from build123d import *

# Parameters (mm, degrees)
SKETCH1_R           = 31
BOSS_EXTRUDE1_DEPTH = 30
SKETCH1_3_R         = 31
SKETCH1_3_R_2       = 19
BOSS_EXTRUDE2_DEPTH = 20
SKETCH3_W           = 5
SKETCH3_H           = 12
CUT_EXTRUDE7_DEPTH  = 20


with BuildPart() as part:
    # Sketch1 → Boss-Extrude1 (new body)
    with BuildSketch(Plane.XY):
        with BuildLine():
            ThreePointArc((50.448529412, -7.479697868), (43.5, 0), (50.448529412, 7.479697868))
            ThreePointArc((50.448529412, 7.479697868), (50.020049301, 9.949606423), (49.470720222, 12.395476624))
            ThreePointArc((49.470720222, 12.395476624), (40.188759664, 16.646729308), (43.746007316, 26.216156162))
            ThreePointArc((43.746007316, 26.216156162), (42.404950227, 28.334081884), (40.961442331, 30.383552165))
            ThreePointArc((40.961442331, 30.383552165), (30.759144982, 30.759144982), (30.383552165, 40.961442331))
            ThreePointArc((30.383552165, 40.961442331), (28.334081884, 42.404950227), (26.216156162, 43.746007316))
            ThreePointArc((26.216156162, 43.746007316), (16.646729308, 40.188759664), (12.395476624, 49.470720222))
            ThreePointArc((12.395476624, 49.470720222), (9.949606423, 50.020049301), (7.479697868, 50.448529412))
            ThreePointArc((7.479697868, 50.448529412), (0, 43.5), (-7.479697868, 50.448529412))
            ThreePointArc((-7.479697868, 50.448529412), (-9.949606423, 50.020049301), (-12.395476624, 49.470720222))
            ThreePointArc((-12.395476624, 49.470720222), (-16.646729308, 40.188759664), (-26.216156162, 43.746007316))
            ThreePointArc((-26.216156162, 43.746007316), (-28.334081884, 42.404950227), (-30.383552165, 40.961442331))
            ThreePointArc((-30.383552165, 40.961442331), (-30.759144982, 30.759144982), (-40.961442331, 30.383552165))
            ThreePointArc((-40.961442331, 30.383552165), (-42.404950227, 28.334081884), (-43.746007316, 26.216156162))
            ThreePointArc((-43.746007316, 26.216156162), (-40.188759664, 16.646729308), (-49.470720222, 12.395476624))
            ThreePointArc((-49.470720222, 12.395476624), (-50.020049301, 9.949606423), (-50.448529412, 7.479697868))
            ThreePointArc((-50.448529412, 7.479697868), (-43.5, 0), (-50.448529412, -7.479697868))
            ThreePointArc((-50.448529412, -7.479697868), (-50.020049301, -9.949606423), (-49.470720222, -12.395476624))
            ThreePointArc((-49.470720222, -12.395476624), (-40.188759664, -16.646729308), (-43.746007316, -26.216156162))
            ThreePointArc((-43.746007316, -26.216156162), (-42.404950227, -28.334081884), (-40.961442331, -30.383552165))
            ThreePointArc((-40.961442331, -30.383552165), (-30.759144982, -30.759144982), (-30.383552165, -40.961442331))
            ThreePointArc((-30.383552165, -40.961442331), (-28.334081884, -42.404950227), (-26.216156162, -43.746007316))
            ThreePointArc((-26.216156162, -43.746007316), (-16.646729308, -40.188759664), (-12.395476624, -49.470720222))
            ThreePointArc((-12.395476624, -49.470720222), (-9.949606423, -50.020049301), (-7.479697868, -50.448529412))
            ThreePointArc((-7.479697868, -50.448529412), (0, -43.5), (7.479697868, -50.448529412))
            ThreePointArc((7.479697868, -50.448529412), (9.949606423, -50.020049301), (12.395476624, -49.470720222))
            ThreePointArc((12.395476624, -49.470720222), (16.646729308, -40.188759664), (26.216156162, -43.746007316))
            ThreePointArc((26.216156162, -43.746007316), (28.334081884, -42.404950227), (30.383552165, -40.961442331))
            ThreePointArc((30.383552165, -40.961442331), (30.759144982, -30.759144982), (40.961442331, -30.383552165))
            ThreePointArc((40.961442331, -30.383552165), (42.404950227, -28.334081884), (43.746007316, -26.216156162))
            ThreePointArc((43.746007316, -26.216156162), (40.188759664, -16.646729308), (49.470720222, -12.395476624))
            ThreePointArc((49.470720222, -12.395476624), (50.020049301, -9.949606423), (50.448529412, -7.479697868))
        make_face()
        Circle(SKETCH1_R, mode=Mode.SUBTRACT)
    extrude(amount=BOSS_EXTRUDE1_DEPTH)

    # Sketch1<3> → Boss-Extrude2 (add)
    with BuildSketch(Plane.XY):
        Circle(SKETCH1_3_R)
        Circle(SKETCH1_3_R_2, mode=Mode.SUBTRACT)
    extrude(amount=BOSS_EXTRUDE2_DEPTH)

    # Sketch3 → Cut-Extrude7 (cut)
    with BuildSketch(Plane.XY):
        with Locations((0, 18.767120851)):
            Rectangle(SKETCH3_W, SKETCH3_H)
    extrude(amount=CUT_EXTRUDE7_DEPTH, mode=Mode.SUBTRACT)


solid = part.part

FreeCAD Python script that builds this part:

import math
import FreeCAD as App
import Part
import Sketcher

V = App.Vector

doc = App.newDocument("Part")
params = doc.addObject("Spreadsheet::Sheet", "Params")
for row, (alias, value) in enumerate([
    ("sketch1_diameter", "62 mm"),
    ("sketch1_radius", "51 mm"),
    ("sketch1_radius2", "7.5 mm"),
    ("pad1_length", "30 mm"),
    ("sketch2_diameter", "62 mm"),
    ("sketch2_diameter2", "38 mm"),
    ("pad2_length", "20 mm"),
    ("sketch3_width", "5 mm"),
    ("sketch3_height", "12 mm"),
    ("pocket1_length", "20 mm"),
], start=1):
    params.set(f"A{row}", alias)
    params.set(f"B{row}", "=" + value)
    params.setAlias(f"B{row}", alias)

body = doc.addObject("PartDesign::Body", "Body")

sketch1 = body.newObject("Sketcher::SketchObject", "Sketch")
sketch1.AttachmentSupport = (doc.getObject("XY_Plane"), [""])
sketch1.MapMode = "FlatFace"
sketch1.addGeometry([
    Part.ArcOfCircle(Part.Circle(V(51, 0, 0), V(0, 0, 1), 8), math.radians(94), math.radians(266)),
    Part.ArcOfCircle(Part.Circle(V(0, 0, 0), V(0, 0, 1), 51), math.radians(8.43), math.radians(14.07)),
    Part.ArcOfCircle(Part.Circle(V(47, 20, 0), V(0, 0, 1), 8), math.radians(117), math.radians(288)),
    Part.ArcOfCircle(Part.Circle(V(0, 0, 0), V(0, 0, 1), 51), math.radians(30.93), math.radians(36.57)),
    Part.ArcOfCircle(Part.Circle(V(36, 36, 0), V(0, 0, 1), 7), math.radians(139), math.radians(311)),
    Part.ArcOfCircle(Part.Circle(V(0, 0, 0), V(0, 0, 1), 51), math.radians(53.43), math.radians(59.07)),
    Part.ArcOfCircle(Part.Circle(V(20, 47, 0), V(0, 0, 1), 8), math.radians(162), math.radians(333)),
    Part.ArcOfCircle(Part.Circle(V(0, 0, 0), V(0, 0, 1), 51), math.radians(75.93), math.radians(81.57)),
    Part.ArcOfCircle(Part.Circle(V(0, 51, 0), V(0, 0, 1), 8), math.radians(-176), math.radians(-4)),
    Part.ArcOfCircle(Part.Circle(V(0, 0, 0), V(0, 0, 1), 51), math.radians(98.43), math.radians(104.07)),
    Part.ArcOfCircle(Part.Circle(V(-20, 47, 0), V(0, 0, 1), 8), math.radians(-153), math.radians(18)),
    Part.ArcOfCircle(Part.Circle(V(0, 0, 0), V(0, 0, 1), 51), math.radians(120.93), math.radians(126.57)),
    Part.ArcOfCircle(Part.Circle(V(-36, 36, 0), V(0, 0, 1), 7), math.radians(-131), math.radians(41)),
    Part.ArcOfCircle(Part.Circle(V(0, 0, 0), V(0, 0, 1), 51), math.radians(143.43), math.radians(149.07)),
    Part.ArcOfCircle(Part.Circle(V(-47, 20, 0), V(0, 0, 1), 8), math.radians(-108), math.radians(63)),
    Part.ArcOfCircle(Part.Circle(V(0, 0, 0), V(0, 0, 1), 51), math.radians(165.93), math.radians(171.57)),
    Part.ArcOfCircle(Part.Circle(V(-51, 0, 0), V(0, 0, 1), 8), math.radians(-86), math.radians(86)),
    Part.ArcOfCircle(Part.Circle(V(0, 0, 0), V(0, 0, 1), 51), math.radians(-171.57), math.radians(-165.93)),
    Part.ArcOfCircle(Part.Circle(V(-47, -20, 0), V(0, 0, 1), 8), math.radians(-63), math.radians(108)),
    Part.ArcOfCircle(Part.Circle(V(0, 0, 0), V(0, 0, 1), 51), math.radians(-149.07), math.radians(-143.43)),
    Part.ArcOfCircle(Part.Circle(V(-36, -36, 0), V(0, 0, 1), 7), math.radians(-41), math.radians(131)),
    Part.ArcOfCircle(Part.Circle(V(0, 0, 0), V(0, 0, 1), 51), math.radians(-126.57), math.radians(-120.93)),
    Part.ArcOfCircle(Part.Circle(V(-20, -47, 0), V(0, 0, 1), 8), math.radians(-18), math.radians(153)),
    Part.ArcOfCircle(Part.Circle(V(0, 0, 0), V(0, 0, 1), 51), math.radians(-104.07), math.radians(-98.43)),
    Part.ArcOfCircle(Part.Circle(V(0, -51, 0), V(0, 0, 1), 8), math.radians(4), math.radians(176)),
    Part.ArcOfCircle(Part.Circle(V(0, 0, 0), V(0, 0, 1), 51), math.radians(-81.57), math.radians(-75.93)),
    Part.ArcOfCircle(Part.Circle(V(20, -47, 0), V(0, 0, 1), 8), math.radians(27), math.radians(198)),
    Part.ArcOfCircle(Part.Circle(V(0, 0, 0), V(0, 0, 1), 51), math.radians(-59.07), math.radians(-53.43)),
    Part.ArcOfCircle(Part.Circle(V(36, -36, 0), V(0, 0, 1), 7), math.radians(49), math.radians(221)),
    Part.ArcOfCircle(Part.Circle(V(0, 0, 0), V(0, 0, 1), 51), math.radians(-36.57), math.radians(-30.93)),
    Part.ArcOfCircle(Part.Circle(V(47, -20, 0), V(0, 0, 1), 8), math.radians(72), math.radians(243)),
    Part.ArcOfCircle(Part.Circle(V(0, 0, 0), V(0, 0, 1), 51), math.radians(-14.07), math.radians(-8.43)),
    Part.Circle(V(0, 0, 0), V(0, 0, 1), 31),
], False)
sketch1.addConstraint([
    Sketcher.Constraint("Coincident", 0, 1, 1, 1),
    Sketcher.Constraint("Coincident", 1, 2, 2, 2),
    Sketcher.Constraint("Coincident", 2, 1, 3, 1),
    Sketcher.Constraint("Coincident", 3, 2, 4, 2),
    Sketcher.Constraint("Coincident", 4, 1, 5, 1),
    Sketcher.Constraint("Coincident", 5, 2, 6, 2),
    Sketcher.Constraint("Coincident", 6, 1, 7, 1),
    Sketcher.Constraint("Coincident", 7, 2, 8, 2),
    Sketcher.Constraint("Coincident", 8, 1, 9, 1),
    Sketcher.Constraint("Coincident", 9, 2, 10, 2),
    Sketcher.Constraint("Coincident", 10, 1, 11, 1),
    Sketcher.Constraint("Coincident", 11, 2, 12, 2),
    Sketcher.Constraint("Coincident", 12, 1, 13, 1),
    Sketcher.Constraint("Coincident", 13, 2, 14, 2),
    Sketcher.Constraint("Coincident", 14, 1, 15, 1),
    Sketcher.Constraint("Coincident", 15, 2, 16, 2),
    Sketcher.Constraint("Coincident", 16, 1, 17, 1),
    Sketcher.Constraint("Coincident", 17, 2, 18, 2),
    Sketcher.Constraint("Coincident", 18, 1, 19, 1),
    Sketcher.Constraint("Coincident", 19, 2, 20, 2),
    Sketcher.Constraint("Coincident", 20, 1, 21, 1),
    Sketcher.Constraint("Coincident", 21, 2, 22, 2),
    Sketcher.Constraint("Coincident", 22, 1, 23, 1),
    Sketcher.Constraint("Coincident", 23, 2, 24, 2),
    Sketcher.Constraint("Coincident", 24, 1, 25, 1),
    Sketcher.Constraint("Coincident", 25, 2, 26, 2),
    Sketcher.Constraint("Coincident", 26, 1, 27, 1),
    Sketcher.Constraint("Coincident", 27, 2, 28, 2),
    Sketcher.Constraint("Coincident", 28, 1, 29, 1),
    Sketcher.Constraint("Coincident", 29, 2, 30, 2),
    Sketcher.Constraint("Coincident", 30, 1, 31, 1),
    Sketcher.Constraint("Coincident", 31, 2, 0, 2),
    Sketcher.Constraint("Coincident", 1, 3, -1, 1),
    Sketcher.Constraint("Coincident", 3, 3, -1, 1),
    Sketcher.Constraint("Coincident", 5, 3, -1, 1),
    Sketcher.Constraint("Coincident", 7, 3, -1, 1),
    Sketcher.Constraint("Coincident", 9, 3, -1, 1),
    Sketcher.Constraint("Coincident", 11, 3, -1, 1),
    Sketcher.Constraint("Coincident", 13, 3, -1, 1),
    Sketcher.Constraint("Coincident", 15, 3, -1, 1),
    Sketcher.Constraint("Coincident", 17, 3, -1, 1),
    Sketcher.Constraint("Coincident", 19, 3, -1, 1),
    Sketcher.Constraint("Coincident", 21, 3, -1, 1),
    Sketcher.Constraint("Coincident", 23, 3, -1, 1),
    Sketcher.Constraint("Coincident", 25, 3, -1, 1),
    Sketcher.Constraint("Coincident", 27, 3, -1, 1),
    Sketcher.Constraint("Coincident", 29, 3, -1, 1),
    Sketcher.Constraint("Coincident", 31, 3, -1, 1),
    Sketcher.Constraint("Coincident", 32, 3, -1, 1),
    Sketcher.Constraint("Equal", 0, 2),
    Sketcher.Constraint("Equal", 1, 3),
    Sketcher.Constraint("Equal", 2, 4),
    Sketcher.Constraint("Equal", 3, 5),
    Sketcher.Constraint("Equal", 4, 6),
    Sketcher.Constraint("Equal", 5, 7),
    Sketcher.Constraint("Equal", 6, 8),
    Sketcher.Constraint("Equal", 7, 9),
    Sketcher.Constraint("Equal", 8, 10),
    Sketcher.Constraint("Equal", 9, 11),
    Sketcher.Constraint("Equal", 10, 12),
    Sketcher.Constraint("Equal", 11, 13),
    Sketcher.Constraint("Equal", 12, 14),
    Sketcher.Constraint("Equal", 13, 15),
    Sketcher.Constraint("Equal", 14, 16),
    Sketcher.Constraint("Equal", 15, 17),
    Sketcher.Constraint("Equal", 16, 18),
    Sketcher.Constraint("Equal", 17, 19),
    Sketcher.Constraint("Equal", 18, 20),
    Sketcher.Constraint("Equal", 19, 21),
    Sketcher.Constraint("Equal", 20, 22),
    Sketcher.Constraint("Equal", 21, 23),
    Sketcher.Constraint("Equal", 22, 24),
    Sketcher.Constraint("Equal", 23, 25),
    Sketcher.Constraint("Equal", 24, 26),
    Sketcher.Constraint("Equal", 25, 27),
    Sketcher.Constraint("Equal", 26, 28),
    Sketcher.Constraint("Equal", 27, 29),
    Sketcher.Constraint("Equal", 28, 30),
    Sketcher.Constraint("Equal", 29, 31),
    Sketcher.Constraint("Symmetric", 0, 3, 16, 3, -1, 1),
    Sketcher.Constraint("Symmetric", 2, 3, 18, 3, -1, 1),
    Sketcher.Constraint("Symmetric", 4, 3, 20, 3, -1, 1),
    Sketcher.Constraint("Symmetric", 6, 3, 22, 3, -1, 1),
    Sketcher.Constraint("Symmetric", 8, 3, 24, 3, -1, 1),
    Sketcher.Constraint("Symmetric", 10, 3, 26, 3, -1, 1),
    Sketcher.Constraint("Symmetric", 12, 3, 28, 3, -1, 1),
    Sketcher.Constraint("Symmetric", 14, 3, 30, 3, -1, 1),
    Sketcher.Constraint("Symmetric", 6, 3, 10, 3, -2),
    Sketcher.Constraint("Symmetric", 4, 3, 12, 3, -2),
    Sketcher.Constraint("Symmetric", 2, 3, 14, 3, -2),
    Sketcher.Constraint("PointOnObject", 0, 3, -1),
    Sketcher.Constraint("PointOnObject", 8, 3, -2),
    Sketcher.Constraint("Diameter", 32, 62.0),
    Sketcher.Constraint("Radius", 1, 51.0),
    Sketcher.Constraint("Radius", 0, 7.5),
    Sketcher.Constraint("DistanceX", -1, 1, 0, 3, 51.0),
    Sketcher.Constraint("DistanceY", -1, 1, 8, 3, 51.0),
    Sketcher.Constraint("DistanceX", -1, 1, 1, 2, 49.47072),
    Sketcher.Constraint("DistanceY", -1, 1, 6, 1, 49.47072),
    Sketcher.Constraint("DistanceX", -1, 1, 2, 3, 47.117856),
    Sketcher.Constraint("DistanceX", -1, 1, 4, 3, 36.062446),
    Sketcher.Constraint("DistanceY", -1, 1, 4, 3, 36.062446),
    Sketcher.Constraint("DistanceX", -1, 1, 6, 3, 19.516855),
])
sketch1.setExpression("Constraints[92]", "Params.sketch1_diameter")
sketch1.setExpression("Constraints[93]", "Params.sketch1_radius")
sketch1.setExpression("Constraints[94]", "Params.sketch1_radius2")
pad1 = body.newObject("PartDesign::Pad", "Pad")
pad1.Profile = sketch1
pad1.setExpression("Length", "Params.pad1_length")

sketch2 = body.newObject("Sketcher::SketchObject", "Sketch001")
sketch2.AttachmentSupport = (doc.getObject("XY_Plane"), [""])
sketch2.MapMode = "FlatFace"
sketch2.addGeometry([
    Part.Circle(V(0, 0, 0), V(0, 0, 1), 31),
    Part.Circle(V(0, 0, 0), V(0, 0, 1), 19),
], False)
sketch2.addConstraint([
    Sketcher.Constraint("Coincident", 0, 3, -1, 1),
    Sketcher.Constraint("Coincident", 1, 3, -1, 1),
    Sketcher.Constraint("Diameter", 0, 62.0),
    Sketcher.Constraint("Diameter", 1, 38.0),
])
sketch2.setExpression("Constraints[2]", "Params.sketch2_diameter")
sketch2.setExpression("Constraints[3]", "Params.sketch2_diameter2")
pad2 = body.newObject("PartDesign::Pad", "Pad001")
pad2.Profile = sketch2
pad2.setExpression("Length", "Params.pad2_length")

sketch3 = body.newObject("Sketcher::SketchObject", "Sketch002")
sketch3.AttachmentSupport = (doc.getObject("XY_Plane"), [""])
sketch3.MapMode = "FlatFace"
sketch3.addGeometry([
    Part.LineSegment(V(-2, 25, 0), V(-2, 13, 0)),
    Part.LineSegment(V(-2, 13, 0), V(2, 13, 0)),
    Part.LineSegment(V(2, 13, 0), V(2, 25, 0)),
    Part.LineSegment(V(2, 25, 0), V(-2, 25, 0)),
], False)
sketch3.addConstraint([
    Sketcher.Constraint("Coincident", 0, 2, 1, 1),
    Sketcher.Constraint("Coincident", 1, 2, 2, 1),
    Sketcher.Constraint("Coincident", 2, 2, 3, 1),
    Sketcher.Constraint("Coincident", 3, 2, 0, 1),
    Sketcher.Constraint("Vertical", 0),
    Sketcher.Constraint("Horizontal", 1),
    Sketcher.Constraint("Vertical", 2),
    Sketcher.Constraint("Horizontal", 3),
    Sketcher.Constraint("DistanceX", 1, 1, 1, 2, 5.0),
    Sketcher.Constraint("DistanceY", 0, 2, 0, 1, 12.0),
    Sketcher.Constraint("DistanceX", 0, 2, -1, 1, 2.5),
    Sketcher.Constraint("DistanceY", -1, 1, 0, 2, 12.767121),
])
sketch3.setExpression("Constraints[8]", "Params.sketch3_width")
sketch3.setExpression("Constraints[9]", "Params.sketch3_height")
pocket1 = body.newObject("PartDesign::Pocket", "Pocket")
pocket1.Profile = sketch3
pocket1.setExpression("Length", "Params.pocket1_length")
pocket1.Reversed = True

doc.recompute()
